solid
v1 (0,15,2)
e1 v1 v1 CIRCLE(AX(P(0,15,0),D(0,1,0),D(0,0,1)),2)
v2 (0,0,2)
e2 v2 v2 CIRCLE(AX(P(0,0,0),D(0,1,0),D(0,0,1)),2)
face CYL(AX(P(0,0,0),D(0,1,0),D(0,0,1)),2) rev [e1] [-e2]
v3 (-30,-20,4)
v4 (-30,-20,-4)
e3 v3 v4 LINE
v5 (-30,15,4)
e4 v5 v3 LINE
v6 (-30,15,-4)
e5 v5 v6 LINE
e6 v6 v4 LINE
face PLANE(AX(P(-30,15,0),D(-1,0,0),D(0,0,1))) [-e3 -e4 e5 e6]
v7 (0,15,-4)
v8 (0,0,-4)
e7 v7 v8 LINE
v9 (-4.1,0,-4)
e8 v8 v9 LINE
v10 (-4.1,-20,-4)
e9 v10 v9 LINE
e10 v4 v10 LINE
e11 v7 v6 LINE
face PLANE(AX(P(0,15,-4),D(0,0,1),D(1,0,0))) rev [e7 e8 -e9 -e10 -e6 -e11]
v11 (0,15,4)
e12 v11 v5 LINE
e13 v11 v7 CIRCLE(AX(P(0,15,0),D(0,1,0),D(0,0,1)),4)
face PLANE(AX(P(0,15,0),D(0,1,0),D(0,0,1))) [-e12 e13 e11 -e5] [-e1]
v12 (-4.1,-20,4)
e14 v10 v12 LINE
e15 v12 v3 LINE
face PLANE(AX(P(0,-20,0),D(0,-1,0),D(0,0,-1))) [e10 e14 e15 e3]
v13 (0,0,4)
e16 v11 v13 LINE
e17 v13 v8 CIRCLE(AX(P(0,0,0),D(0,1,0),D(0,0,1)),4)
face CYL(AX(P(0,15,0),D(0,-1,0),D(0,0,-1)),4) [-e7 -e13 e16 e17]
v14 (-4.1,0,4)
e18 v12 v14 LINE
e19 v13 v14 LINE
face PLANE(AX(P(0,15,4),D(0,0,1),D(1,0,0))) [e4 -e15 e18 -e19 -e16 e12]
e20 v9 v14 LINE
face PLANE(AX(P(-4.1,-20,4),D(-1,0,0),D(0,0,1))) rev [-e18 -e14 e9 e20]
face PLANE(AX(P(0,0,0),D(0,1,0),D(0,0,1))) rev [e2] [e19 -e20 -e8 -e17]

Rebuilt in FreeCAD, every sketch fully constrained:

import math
import FreeCAD as App
import Part
import Sketcher

V = App.Vector
Q = App.Units.Quantity

doc = App.newDocument("Part")
body = doc.addObject("PartDesign::Body", "Body")

sketch1 = doc.addObject("Sketcher::SketchObject", "Sketch")
body.addObject(sketch1)
sketch1.AttachmentSupport = (doc.XZ_Plane, [""])
sketch1.MapMode = "FlatFace"
sketch1.addGeometry([
    Part.LineSegment(V(0, -4, 0), V(-30, -4, 0)),
    Part.LineSegment(V(-30, -4, 0), V(-30, 4, 0)),
    Part.LineSegment(V(-30, 4, 0), V(0, 4, 0)),
    Part.ArcOfCircle(Part.Circle(V(0, 0, 0), V(0, 0, 1), 4), math.radians(0), math.radians(90)),
    Part.ArcOfCircle(Part.Circle(V(0, 0, 0), V(0, 0, 1), 4), math.radians(-90), math.radians(0)),
], False)
sketch1.addConstraint([
    Sketcher.Constraint("Coincident", 0, 2, 1, 1),
    Sketcher.Constraint("Coincident", 1, 2, 2, 1),
    Sketcher.Constraint("Tangent", 2, 2, 3, 2),
    Sketcher.Constraint("Tangent", 3, 1, 4, 2),
    Sketcher.Constraint("Tangent", 4, 1, 0, 1),
    Sketcher.Constraint("Horizontal", 0),
    Sketcher.Constraint("Vertical", 1),
    Sketcher.Constraint("Horizontal", 2),
    Sketcher.Constraint("Coincident", 3, 3, -1, 1),
    Sketcher.Constraint("Equal", 3, 4),
    Sketcher.Constraint("PointOnObject", 3, 1, -1),
    Sketcher.Constraint("Radius", 3, Q("4 mm")),
    Sketcher.Constraint("DistanceX", 0, 2, 0, 1, Q("30 mm")),
])
pad1 = doc.addObject("PartDesign::Pad", "Pad")
body.addObject(pad1)
pad1.Profile = sketch1
pad1.Length = 15
pad1.Reversed = True

sketch2 = doc.addObject("Sketcher::SketchObject", "Sketch001")
body.addObject(sketch2)
sketch2.AttachmentSupport = (doc.XZ_Plane, [""])
sketch2.MapMode = "FlatFace"
sketch2.AttachmentOffset = App.Placement(V(0, 0, -15), App.Rotation())
sketch2.addGeometry(Part.Circle(V(0, 0, 0), V(0, 0, 1), 2), False)
sketch2.addConstraint([
    Sketcher.Constraint("Coincident", 0, 3, -1, 1),
    Sketcher.Constraint("Diameter", 0, Q("4 mm")),
])
pocket1 = doc.addObject("PartDesign::Pocket", "Pocket")
body.addObject(pocket1)
pocket1.Profile = sketch2
pocket1.Type = "ThroughAll"
pocket1.Reversed = True

sketch3 = doc.addObject("Sketcher::SketchObject", "Sketch002")
body.addObject(sketch3)
sketch3.AttachmentSupport = (doc.XZ_Plane, [""])
sketch3.MapMode = "FlatFace"
sketch3.addGeometry([
    Part.LineSegment(V(-30, 4, 0), V(-30, -4, 0)),
    Part.LineSegment(V(-30, -4, 0), V(-4.1, -4, 0)),
    Part.LineSegment(V(-4.1, -4, 0), V(-4.1, 4, 0)),
    Part.LineSegment(V(-4.1, 4, 0), V(-30, 4, 0)),
], False)
sketch3.addConstraint([
    Sketcher.Constraint("Coincident", 0, 2, 1, 1),
    Sketcher.Constraint("Coincident", 1, 2, 2, 1),
    Sketcher.Constraint("Coincident", 2, 2, 3, 1),
    Sketcher.Constraint("Coincident", 3, 2, 0, 1),
    Sketcher.Constraint("Vertical", 0),
    Sketcher.Constraint("Horizontal", 1),
    Sketcher.Constraint("Vertical", 2),
    Sketcher.Constraint("Horizontal", 3),
    Sketcher.Constraint("DistanceY", 0, 2, 0, 1, Q("8 mm")),
    Sketcher.Constraint("DistanceX", 1, 1, 1, 2, Q("25.9 mm")),
    Sketcher.Constraint("DistanceX", 0, 2, -1, 1, Q("30 mm")),
    Sketcher.Constraint("DistanceY", 0, 2, -1, 1, Q("4 mm")),
])
pad2 = doc.addObject("PartDesign::Pad", "Pad001")
body.addObject(pad2)
pad2.Profile = sketch3
pad2.Length = 20

doc.recompute()
